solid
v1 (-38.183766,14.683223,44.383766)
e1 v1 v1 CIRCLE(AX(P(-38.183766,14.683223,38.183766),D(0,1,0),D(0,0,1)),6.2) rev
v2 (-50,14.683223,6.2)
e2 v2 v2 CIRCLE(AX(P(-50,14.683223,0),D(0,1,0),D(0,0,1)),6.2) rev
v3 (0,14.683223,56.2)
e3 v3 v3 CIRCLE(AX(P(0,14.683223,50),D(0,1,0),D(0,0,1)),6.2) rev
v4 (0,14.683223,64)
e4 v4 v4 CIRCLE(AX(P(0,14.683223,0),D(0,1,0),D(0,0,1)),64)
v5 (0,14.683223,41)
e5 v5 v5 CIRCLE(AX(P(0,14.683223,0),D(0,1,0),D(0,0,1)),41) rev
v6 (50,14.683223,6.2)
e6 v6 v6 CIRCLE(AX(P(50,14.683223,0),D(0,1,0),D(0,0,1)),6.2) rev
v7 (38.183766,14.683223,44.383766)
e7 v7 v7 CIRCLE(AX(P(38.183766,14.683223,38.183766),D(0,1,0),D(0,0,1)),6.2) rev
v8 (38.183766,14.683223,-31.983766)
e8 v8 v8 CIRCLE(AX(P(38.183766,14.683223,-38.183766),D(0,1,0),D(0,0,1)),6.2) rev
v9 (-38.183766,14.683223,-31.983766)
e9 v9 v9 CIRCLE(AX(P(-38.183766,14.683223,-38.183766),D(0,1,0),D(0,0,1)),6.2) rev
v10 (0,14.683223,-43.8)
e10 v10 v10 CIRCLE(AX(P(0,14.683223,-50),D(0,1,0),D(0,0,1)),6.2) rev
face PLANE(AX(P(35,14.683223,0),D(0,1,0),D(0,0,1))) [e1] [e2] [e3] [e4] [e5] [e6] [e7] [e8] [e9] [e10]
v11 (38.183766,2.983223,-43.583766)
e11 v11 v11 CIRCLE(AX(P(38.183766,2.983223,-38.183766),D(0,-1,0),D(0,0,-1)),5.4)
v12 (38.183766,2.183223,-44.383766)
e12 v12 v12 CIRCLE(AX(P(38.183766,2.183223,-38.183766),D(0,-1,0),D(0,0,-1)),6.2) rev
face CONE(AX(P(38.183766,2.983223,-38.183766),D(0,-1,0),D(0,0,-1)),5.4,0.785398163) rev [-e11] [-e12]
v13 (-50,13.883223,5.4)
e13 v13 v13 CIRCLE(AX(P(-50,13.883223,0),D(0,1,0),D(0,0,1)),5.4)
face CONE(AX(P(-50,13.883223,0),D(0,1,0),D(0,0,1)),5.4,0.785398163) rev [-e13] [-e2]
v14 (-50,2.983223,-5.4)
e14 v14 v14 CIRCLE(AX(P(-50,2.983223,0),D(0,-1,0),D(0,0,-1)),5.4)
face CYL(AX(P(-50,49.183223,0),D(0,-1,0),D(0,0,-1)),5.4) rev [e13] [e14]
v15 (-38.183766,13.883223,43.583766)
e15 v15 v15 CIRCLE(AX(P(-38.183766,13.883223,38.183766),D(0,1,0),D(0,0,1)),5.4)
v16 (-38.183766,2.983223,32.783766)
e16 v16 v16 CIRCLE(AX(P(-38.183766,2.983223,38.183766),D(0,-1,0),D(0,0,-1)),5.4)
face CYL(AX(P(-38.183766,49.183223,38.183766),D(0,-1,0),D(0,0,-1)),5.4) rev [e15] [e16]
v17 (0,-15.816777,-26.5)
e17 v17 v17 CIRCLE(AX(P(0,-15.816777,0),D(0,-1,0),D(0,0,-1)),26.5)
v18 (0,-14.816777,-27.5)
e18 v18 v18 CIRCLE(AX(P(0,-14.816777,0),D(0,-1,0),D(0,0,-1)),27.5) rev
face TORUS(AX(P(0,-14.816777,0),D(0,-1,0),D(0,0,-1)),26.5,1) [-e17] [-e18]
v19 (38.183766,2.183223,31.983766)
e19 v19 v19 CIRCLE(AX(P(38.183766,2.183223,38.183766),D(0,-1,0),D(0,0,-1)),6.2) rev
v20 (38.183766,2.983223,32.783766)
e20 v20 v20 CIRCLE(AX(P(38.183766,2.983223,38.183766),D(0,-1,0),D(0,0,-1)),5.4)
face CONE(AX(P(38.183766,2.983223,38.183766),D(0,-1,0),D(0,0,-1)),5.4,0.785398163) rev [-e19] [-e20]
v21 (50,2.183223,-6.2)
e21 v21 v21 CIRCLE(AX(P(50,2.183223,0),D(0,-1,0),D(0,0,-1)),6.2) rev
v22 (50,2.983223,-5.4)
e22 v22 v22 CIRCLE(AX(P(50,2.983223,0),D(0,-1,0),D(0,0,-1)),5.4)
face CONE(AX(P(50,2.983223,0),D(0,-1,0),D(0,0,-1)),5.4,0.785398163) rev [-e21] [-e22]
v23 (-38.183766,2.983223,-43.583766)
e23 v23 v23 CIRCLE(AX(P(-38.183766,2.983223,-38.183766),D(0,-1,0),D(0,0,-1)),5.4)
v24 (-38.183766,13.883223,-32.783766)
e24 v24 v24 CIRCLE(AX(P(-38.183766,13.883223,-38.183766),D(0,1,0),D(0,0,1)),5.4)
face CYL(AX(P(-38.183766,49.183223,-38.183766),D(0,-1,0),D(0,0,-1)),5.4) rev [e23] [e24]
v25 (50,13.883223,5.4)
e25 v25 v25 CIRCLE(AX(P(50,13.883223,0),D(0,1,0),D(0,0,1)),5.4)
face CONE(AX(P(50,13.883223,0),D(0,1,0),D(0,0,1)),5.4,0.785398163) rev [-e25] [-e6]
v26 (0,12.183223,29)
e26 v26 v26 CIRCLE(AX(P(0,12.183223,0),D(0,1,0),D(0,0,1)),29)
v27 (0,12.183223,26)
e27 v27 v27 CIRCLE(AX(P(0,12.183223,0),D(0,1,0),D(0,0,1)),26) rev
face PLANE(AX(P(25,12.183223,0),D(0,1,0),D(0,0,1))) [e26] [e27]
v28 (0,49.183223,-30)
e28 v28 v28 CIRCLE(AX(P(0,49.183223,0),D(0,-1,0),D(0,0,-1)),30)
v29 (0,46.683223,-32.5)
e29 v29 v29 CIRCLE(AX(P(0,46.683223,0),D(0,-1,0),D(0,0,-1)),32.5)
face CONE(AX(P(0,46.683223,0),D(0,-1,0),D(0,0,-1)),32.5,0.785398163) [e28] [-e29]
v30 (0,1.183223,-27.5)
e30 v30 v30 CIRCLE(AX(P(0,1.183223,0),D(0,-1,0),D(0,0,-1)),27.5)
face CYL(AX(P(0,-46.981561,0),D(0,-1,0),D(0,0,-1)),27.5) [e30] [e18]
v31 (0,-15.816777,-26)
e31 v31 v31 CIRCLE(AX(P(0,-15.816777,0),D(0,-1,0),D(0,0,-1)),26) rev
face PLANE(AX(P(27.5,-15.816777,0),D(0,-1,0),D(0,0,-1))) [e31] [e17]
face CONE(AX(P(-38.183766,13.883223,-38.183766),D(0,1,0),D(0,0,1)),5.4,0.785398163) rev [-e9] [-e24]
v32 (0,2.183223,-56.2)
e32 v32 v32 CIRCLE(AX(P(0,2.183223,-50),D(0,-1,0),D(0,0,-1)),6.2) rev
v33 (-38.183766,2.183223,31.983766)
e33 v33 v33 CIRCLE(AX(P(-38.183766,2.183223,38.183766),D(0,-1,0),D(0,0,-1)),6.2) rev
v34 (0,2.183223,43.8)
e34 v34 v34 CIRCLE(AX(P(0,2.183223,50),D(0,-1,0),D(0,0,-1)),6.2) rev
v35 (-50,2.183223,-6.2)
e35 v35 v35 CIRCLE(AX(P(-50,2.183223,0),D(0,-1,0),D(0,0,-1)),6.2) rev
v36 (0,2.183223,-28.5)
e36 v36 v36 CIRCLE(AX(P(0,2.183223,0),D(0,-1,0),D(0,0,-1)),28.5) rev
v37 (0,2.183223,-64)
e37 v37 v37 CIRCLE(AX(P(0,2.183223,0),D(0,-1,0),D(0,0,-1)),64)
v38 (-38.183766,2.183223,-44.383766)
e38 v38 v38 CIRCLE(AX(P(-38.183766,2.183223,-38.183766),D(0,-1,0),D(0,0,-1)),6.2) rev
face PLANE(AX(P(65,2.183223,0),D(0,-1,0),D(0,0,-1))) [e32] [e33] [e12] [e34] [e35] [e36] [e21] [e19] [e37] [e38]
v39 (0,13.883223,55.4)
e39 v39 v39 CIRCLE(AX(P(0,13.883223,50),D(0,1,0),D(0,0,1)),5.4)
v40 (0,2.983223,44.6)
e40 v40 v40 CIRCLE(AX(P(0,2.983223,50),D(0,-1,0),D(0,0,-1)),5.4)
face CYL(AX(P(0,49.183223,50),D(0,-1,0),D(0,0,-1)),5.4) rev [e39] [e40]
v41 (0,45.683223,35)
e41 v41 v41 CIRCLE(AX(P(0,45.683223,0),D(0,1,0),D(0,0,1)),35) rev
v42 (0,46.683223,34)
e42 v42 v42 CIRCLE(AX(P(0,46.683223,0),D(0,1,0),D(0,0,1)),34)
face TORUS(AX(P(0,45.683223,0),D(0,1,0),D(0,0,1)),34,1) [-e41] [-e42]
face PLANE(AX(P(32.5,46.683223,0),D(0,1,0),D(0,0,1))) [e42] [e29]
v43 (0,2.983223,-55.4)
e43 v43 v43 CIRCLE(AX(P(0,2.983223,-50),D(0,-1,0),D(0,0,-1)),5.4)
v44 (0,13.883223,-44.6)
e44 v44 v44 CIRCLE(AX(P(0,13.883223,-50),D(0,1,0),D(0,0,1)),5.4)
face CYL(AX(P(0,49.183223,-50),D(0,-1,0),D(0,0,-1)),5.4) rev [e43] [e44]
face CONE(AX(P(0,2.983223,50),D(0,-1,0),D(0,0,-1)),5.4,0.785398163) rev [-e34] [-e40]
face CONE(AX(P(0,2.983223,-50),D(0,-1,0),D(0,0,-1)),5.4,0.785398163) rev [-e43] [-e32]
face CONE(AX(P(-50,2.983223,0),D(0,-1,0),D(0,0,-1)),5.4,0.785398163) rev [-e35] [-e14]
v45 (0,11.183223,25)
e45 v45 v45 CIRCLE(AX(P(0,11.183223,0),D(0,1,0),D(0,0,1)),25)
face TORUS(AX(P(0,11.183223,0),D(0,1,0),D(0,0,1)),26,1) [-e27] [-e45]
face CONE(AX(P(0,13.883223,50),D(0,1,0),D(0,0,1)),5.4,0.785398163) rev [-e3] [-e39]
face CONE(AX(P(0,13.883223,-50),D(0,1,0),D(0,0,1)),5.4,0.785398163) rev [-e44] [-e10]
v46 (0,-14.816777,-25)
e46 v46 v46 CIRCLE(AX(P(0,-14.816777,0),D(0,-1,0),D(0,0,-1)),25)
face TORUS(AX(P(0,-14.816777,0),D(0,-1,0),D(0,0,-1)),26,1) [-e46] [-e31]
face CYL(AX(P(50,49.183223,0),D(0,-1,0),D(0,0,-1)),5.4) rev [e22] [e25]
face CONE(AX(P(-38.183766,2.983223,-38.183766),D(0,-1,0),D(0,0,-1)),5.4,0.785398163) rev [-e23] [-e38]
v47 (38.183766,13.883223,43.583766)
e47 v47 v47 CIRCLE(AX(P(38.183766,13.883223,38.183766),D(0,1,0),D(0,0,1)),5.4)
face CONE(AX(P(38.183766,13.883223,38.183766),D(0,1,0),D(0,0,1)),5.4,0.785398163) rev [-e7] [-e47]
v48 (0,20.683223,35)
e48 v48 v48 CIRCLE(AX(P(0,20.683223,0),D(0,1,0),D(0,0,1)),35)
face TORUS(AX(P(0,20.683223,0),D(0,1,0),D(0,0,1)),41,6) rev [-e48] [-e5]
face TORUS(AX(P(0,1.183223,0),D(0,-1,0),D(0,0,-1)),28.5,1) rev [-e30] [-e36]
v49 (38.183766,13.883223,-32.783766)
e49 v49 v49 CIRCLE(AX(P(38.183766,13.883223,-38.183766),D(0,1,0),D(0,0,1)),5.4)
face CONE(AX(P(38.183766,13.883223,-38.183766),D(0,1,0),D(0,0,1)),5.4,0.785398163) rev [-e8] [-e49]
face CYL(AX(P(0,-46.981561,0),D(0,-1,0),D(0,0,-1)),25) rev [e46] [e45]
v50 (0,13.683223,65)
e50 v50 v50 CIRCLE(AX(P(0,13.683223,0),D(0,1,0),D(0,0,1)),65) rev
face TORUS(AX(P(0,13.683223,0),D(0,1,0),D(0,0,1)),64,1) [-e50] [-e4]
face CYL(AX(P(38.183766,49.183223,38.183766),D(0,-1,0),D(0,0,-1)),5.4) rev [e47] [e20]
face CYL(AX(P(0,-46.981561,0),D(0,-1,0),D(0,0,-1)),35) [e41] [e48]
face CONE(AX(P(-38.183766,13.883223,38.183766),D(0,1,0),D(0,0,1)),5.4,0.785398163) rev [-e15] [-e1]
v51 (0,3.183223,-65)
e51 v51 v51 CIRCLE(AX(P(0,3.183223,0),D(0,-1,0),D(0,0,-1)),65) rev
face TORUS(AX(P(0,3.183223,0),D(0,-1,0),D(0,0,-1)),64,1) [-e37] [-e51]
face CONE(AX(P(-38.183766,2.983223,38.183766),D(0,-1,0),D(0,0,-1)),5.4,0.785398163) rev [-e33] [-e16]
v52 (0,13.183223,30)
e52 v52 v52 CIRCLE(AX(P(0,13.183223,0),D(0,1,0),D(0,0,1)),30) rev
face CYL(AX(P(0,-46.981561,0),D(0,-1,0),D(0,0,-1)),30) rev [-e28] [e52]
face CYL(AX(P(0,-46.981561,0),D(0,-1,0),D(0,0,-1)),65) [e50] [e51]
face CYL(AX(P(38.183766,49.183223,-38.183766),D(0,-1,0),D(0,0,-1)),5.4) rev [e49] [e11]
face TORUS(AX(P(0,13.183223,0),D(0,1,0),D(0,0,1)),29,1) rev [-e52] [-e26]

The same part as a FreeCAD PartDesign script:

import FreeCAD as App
import Part
import Sketcher
Q = App.Units.Quantity


def edges_at(feature, points):
    """Names of the edges that pass closest to the given points."""
    edges = feature.Shape.Edges
    near = lambda p: min(range(len(edges)), key=lambda i: edges[i].distToShape(Part.Vertex(*p))[0])
    return sorted({f"Edge{near(p) + 1}" for p in points})


def add_polygon(sketch, points):
    """Adds a closed chain of lines whose ends are joined by coincident constraints."""
    first, n = sketch.GeometryCount, len(points)
    for a, b in zip(points, points[1:] + points[:1]):
        sketch.addGeometry(Part.LineSegment(App.Vector(*a, 0), App.Vector(*b, 0)), False)
    for i in range(n):
        sketch.addConstraint(Sketcher.Constraint("Coincident", first + i, 2, first + (i + 1) % n, 1))

doc = App.newDocument("Part")
body = doc.addObject("PartDesign::Body", "Body")

sketch1 = doc.addObject("Sketcher::SketchObject", "Sketch")
body.addObject(sketch1)
sketch1.AttachmentSupport = (doc.XY_Plane, [""])
sketch1.MapMode = "FlatFace"
add_polygon(sketch1, [(32.5, 46.7), (30, 49.2), (30, 12.2), (25, 12.2), (25, -15.8), (27.5, -15.8), (27.5, 2.2), (65, 2.2), (65, 14.7), (35, 14.7), (35, 46.7)])
sketch1.addConstraint([
    Sketcher.Constraint("Vertical", 1),
    Sketcher.Constraint("Horizontal", 2),
    Sketcher.Constraint("Vertical", 3),
    Sketcher.Constraint("Horizontal", 4),
    Sketcher.Constraint("Vertical", 5),
    Sketcher.Constraint("Horizontal", 6),
    Sketcher.Constraint("Vertical", 7),
    Sketcher.Constraint("Horizontal", 8),
    Sketcher.Constraint("Vertical", 9),
    Sketcher.Constraint("Horizontal", 10),
    Sketcher.Constraint("Equal", 4, 10),
    Sketcher.Constraint("DistanceX", 2, 2, 2, 1, Q("5 mm")),
    Sketcher.Constraint("DistanceX", 8, 2, 8, 1, Q("30 mm")),
    Sketcher.Constraint("DistanceY", 1, 2, 1, 1, Q("37 mm")),
    Sketcher.Constraint("DistanceY", 3, 2, 3, 1, Q("28 mm")),
    Sketcher.Constraint("DistanceY", 5, 1, 5, 2, Q("18 mm")),
    Sketcher.Constraint("DistanceY", 9, 1, 9, 2, Q("32 mm")),
    Sketcher.Constraint("Angle", 0, Q("135 deg")),
    Sketcher.Constraint("DistanceX", 4, 1, 4, 2, Q("2.5 mm")),
    Sketcher.Constraint("DistanceX", 6, 1, 6, 2, Q("37.5 mm")),
    Sketcher.Constraint("DistanceX", -1, 1, 0, 2, Q("30 mm")),
    Sketcher.Constraint("DistanceY", -1, 1, 0, 2, Q("49.183223 mm")),
])
revolution = doc.addObject("PartDesign::Revolution", "Revolution")
body.addObject(revolution)
revolution.Profile = sketch1
revolution.ReferenceAxis = (sketch1, ["V_Axis"])
revolution.Angle = 360
doc.recompute()

fillet = doc.addObject("PartDesign::Fillet", "Fillet")
body.addObject(fillet)
fillet.Base = (revolution, edges_at(revolution, [(0, 14.683, 35)]))
fillet.Radius = 6
doc.recompute()

fillet2 = doc.addObject("PartDesign::Fillet", "Fillet001")
body.addObject(fillet2)
fillet2.Base = (fillet, edges_at(fillet, [
    (0, 14.683, 65),
    (0, 46.683, 35),
    (0, 12.183, 30),
    (0, 2.183, 65),
]))
fillet2.Radius = 1
doc.recompute()

fillet3 = doc.addObject("PartDesign::Fillet", "Fillet002")
body.addObject(fillet3)
fillet3.Base = (fillet2, edges_at(fillet2, [
    (0, 12.183, 25),
    (0, -15.817, 25),
    (0, -15.817, 27.5),
    (0, 2.183, 27.5),
]))
fillet3.Radius = 1

sketch2 = doc.addObject("Sketcher::SketchObject", "Sketch001")
body.addObject(sketch2)
sketch2.AttachmentSupport = (doc.XZ_Plane, [""])
sketch2.MapMode = "FlatFace"
sketch2.AttachmentOffset = App.Placement(App.Vector(0, 0, -2.183223), App.Rotation())
sketch2.addGeometry([
    Part.Circle(App.Vector(0, 50, 0), App.Vector(0, 0, 1), 5),
    Part.Circle(App.Vector(50, 0, 0), App.Vector(0, 0, 1), 5),
    Part.Circle(App.Vector(0, -50, 0), App.Vector(0, 0, 1), 5),
    Part.Circle(App.Vector(-50, 0, 0), App.Vector(0, 0, 1), 5),
], False)
sketch2.addConstraint([
    Sketcher.Constraint("Equal", 0, 1),
    Sketcher.Constraint("Equal", 1, 2),
    Sketcher.Constraint("Equal", 2, 3),
    Sketcher.Constraint("Symmetric", 0, 3, 2, 3, -1, 1),
    Sketcher.Constraint("Symmetric", 1, 3, 3, 3, -1, 1),
    Sketcher.Constraint("PointOnObject", 0, 3, -2),
    Sketcher.Constraint("PointOnObject", 1, 3, -1),
    Sketcher.Constraint("Diameter", 0, Q("10.8 mm")),
    Sketcher.Constraint("DistanceY", -1, 1, 0, 3, Q("50 mm")),
    Sketcher.Constraint("DistanceX", -1, 1, 1, 3, Q("50 mm")),
])
pocket1 = doc.addObject("PartDesign::Pocket", "Pocket")
body.addObject(pocket1)
pocket1.Profile = sketch2
pocket1.Type = "ThroughAll"

sketch3 = doc.addObject("Sketcher::SketchObject", "Sketch002")
body.addObject(sketch3)
sketch3.AttachmentSupport = (doc.XZ_Plane, [""])
sketch3.MapMode = "FlatFace"
sketch3.AttachmentOffset = App.Placement(App.Vector(0, 0, -2.183223), App.Rotation())
sketch3.addGeometry([
    Part.Circle(App.Vector(-38, 38, 0), App.Vector(0, 0, 1), 5),
    Part.Circle(App.Vector(38, 38, 0), App.Vector(0, 0, 1), 5),
    Part.Circle(App.Vector(38, -38, 0), App.Vector(0, 0, 1), 5),
    Part.Circle(App.Vector(-38, -38, 0), App.Vector(0, 0, 1), 5),
], False)
sketch3.addConstraint([
    Sketcher.Constraint("Equal", 0, 1),
    Sketcher.Constraint("Equal", 1, 2),
    Sketcher.Constraint("Equal", 2, 3),
    Sketcher.Constraint("Symmetric", 0, 3, 2, 3, -1, 1),
    Sketcher.Constraint("Symmetric", 1, 3, 3, 3, -1, 1),
    Sketcher.Constraint("Symmetric", 0, 3, 1, 3, -2),
    Sketcher.Constraint("Diameter", 0, Q("10.8 mm")),
    Sketcher.Constraint("DistanceX", 0, 3, -1, 1, Q("38.183766 mm")),
    Sketcher.Constraint("DistanceY", -1, 1, 0, 3, Q("38.183766 mm")),
])
pocket2 = doc.addObject("PartDesign::Pocket", "Pocket001")
body.addObject(pocket2)
pocket2.Profile = sketch3
pocket2.Type = "ThroughAll"
doc.recompute()

chamfer = doc.addObject("PartDesign::Chamfer", "Chamfer")
body.addObject(chamfer)
chamfer.Base = (pocket2, edges_at(pocket2, [
    (0, 14.683, 55.4),
    (0, 2.183, 55.4),
    (50, 14.683, 5.4),
    (50, 2.183, 5.4),
    (0, 14.683, -44.6),
    (0, 2.183, -44.6),
    (-50, 14.683, 5.4),
    (-50, 2.183, 5.4),
    (-38.184, 14.683, 43.584),
    (-38.184, 2.183, 43.584),
    (38.184, 14.683, 43.584),
    (38.184, 2.183, 43.584),
    (38.184, 14.683, -32.784),
    (38.184, 2.183, -32.784),
    (-38.184, 14.683, -32.784),
    (-38.184, 2.183, -32.784),
]))
chamfer.Size = 0.8

doc.recompute()
